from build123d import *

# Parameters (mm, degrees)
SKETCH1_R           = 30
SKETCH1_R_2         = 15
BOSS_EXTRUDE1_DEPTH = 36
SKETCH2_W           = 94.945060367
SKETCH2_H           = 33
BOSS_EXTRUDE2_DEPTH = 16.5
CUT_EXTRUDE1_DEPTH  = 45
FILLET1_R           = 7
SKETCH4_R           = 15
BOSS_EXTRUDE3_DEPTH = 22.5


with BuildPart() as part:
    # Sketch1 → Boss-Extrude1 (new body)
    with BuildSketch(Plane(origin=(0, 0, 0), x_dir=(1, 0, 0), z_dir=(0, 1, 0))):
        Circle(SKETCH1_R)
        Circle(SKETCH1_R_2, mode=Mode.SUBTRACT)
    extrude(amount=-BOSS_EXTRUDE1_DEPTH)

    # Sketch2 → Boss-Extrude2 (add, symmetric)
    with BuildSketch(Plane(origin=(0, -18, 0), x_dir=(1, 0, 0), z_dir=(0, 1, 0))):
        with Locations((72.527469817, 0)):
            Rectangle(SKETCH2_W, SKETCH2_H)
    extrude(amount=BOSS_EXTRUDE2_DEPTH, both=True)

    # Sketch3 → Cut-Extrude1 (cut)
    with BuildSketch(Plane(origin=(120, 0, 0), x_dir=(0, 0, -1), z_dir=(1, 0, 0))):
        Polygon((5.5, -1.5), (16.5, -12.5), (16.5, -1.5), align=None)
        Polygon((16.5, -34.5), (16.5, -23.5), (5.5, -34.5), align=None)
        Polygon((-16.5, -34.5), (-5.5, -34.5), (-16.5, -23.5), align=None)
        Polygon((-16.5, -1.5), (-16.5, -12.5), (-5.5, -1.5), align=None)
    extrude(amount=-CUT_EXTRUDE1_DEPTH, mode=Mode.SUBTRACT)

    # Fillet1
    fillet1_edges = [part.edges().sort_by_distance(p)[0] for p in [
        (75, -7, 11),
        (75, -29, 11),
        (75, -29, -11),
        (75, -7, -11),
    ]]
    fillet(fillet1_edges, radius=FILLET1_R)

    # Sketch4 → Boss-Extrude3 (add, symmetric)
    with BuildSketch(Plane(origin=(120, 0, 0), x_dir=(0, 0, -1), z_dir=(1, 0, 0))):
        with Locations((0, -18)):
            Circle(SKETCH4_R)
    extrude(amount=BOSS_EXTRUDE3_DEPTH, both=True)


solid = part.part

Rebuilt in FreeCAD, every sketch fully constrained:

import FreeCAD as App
import Part
import Sketcher


def edges_at(feature, points):
    """Names of the edges that pass closest to the given points."""
    edges = feature.Shape.Edges
    near = lambda p: min(range(len(edges)), key=lambda i: edges[i].distToShape(Part.Vertex(*p))[0])
    return sorted({f"Edge{near(p) + 1}" for p in points})


def add_polygon(sketch, points):
    """Adds a closed chain of lines whose ends are joined by coincident constraints."""
    first, n = sketch.GeometryCount, len(points)
    for a, b in zip(points, points[1:] + points[:1]):
        sketch.addGeometry(Part.LineSegment(App.Vector(*a, 0), App.Vector(*b, 0)), False)
    for i in range(n):
        sketch.addConstraint(Sketcher.Constraint("Coincident", first + i, 2, first + (i + 1) % n, 1))

doc = App.newDocument("Part")
params = doc.addObject("Spreadsheet::Sheet", "Params")
for row, (alias, value) in enumerate([
    ("sketch1_diameter", "60 mm"),
    ("sketch1_diameter2", "30 mm"),
    ("pad1_length", "36 mm"),
    ("sketch2_height", "33 mm"),
    ("pad2_length", "33 mm"),
    ("sketch3_width", "11 mm"),
    ("pocket1_length", "45 mm"),
    ("fillet_radius", "7 mm"),
    ("sketch4_diameter", "30 mm"),
    ("pad3_length", "45 mm"),
], start=1):
    params.set(f"A{row}", alias)
    params.set(f"B{row}", "=" + value)
    params.setAlias(f"B{row}", alias)

body = doc.addObject("PartDesign::Body", "Body")

sketch1 = body.newObject("Sketcher::SketchObject", "Sketch")
sketch1.AttachmentSupport = (doc.getObject("XZ_Plane"), [""])
sketch1.MapMode = "FlatFace"
sketch1.addGeometry([
    Part.Circle(App.Vector(0, 0, 0), App.Vector(0, 0, 1), 30),
    Part.Circle(App.Vector(0, 0, 0), App.Vector(0, 0, 1), 15),
], False)
sketch1.addConstraint([
    Sketcher.Constraint("Coincident", 0, 3, -1, 1),
    Sketcher.Constraint("Coincident", 1, 3, -1, 1),
    Sketcher.Constraint("Diameter", 0, 60.0),
    Sketcher.Constraint("Diameter", 1, 30.0),
])
sketch1.setExpression("Constraints[2]", "Params.sketch1_diameter")
sketch1.setExpression("Constraints[3]", "Params.sketch1_diameter2")
pad1 = body.newObject("PartDesign::Pad", "Pad")
pad1.Profile = sketch1
pad1.setExpression("Length", "Params.pad1_length")

sketch2 = body.newObject("Sketcher::SketchObject", "Sketch001")
sketch2.AttachmentSupport = (doc.getObject("XZ_Plane"), [""])
sketch2.MapMode = "FlatFace"
sketch2.AttachmentOffset = App.Placement(App.Vector(0, 0, 18), App.Rotation())
add_polygon(sketch2, [(25, -16), (25, 16), (120, 16), (120, -16)])
sketch2.addConstraint([
    Sketcher.Constraint("Vertical", 0),
    Sketcher.Constraint("Horizontal", 1),
    Sketcher.Constraint("Vertical", 2),
    Sketcher.Constraint("Horizontal", 3),
    Sketcher.Constraint("DistanceY", 0, 1, 0, 2, 33.0),
    Sketcher.Constraint("DistanceX", -1, 1, 1, 2, 120.0),
    Sketcher.Constraint("DistanceY", -1, 1, 0, 2, 16.5),
    Sketcher.Constraint("DistanceX", 1, 1, 1, 2, 94.94506),
])
sketch2.setExpression("Constraints[8]", "Params.sketch2_height")
pad2 = body.newObject("PartDesign::Pad", "Pad001")
pad2.Profile = sketch2
pad2.setExpression("Length", "Params.pad2_length")
pad2.Midplane = True

sketch3 = body.newObject("Sketcher::SketchObject", "Sketch002")
sketch3.AttachmentSupport = (doc.getObject("YZ_Plane"), [""])
sketch3.MapMode = "FlatFace"
sketch3.AttachmentOffset = App.Placement(App.Vector(0, 0, 120), App.Rotation())
add_polygon(sketch3, [(-2, -6), (-12, -16), (-2, -16)])
add_polygon(sketch3, [(-34, -16), (-24, -16), (-34, -6)])
add_polygon(sketch3, [(-34, 16), (-34, 6), (-24, 16)])
add_polygon(sketch3, [(-2, 16), (-12, 16), (-2, 6)])
sketch3.addConstraint([
    Sketcher.Constraint("Horizontal", 1),
    Sketcher.Constraint("Vertical", 2),
    Sketcher.Constraint("Horizontal", 3),
    Sketcher.Constraint("Vertical", 5),
    Sketcher.Constraint("Vertical", 6),
    Sketcher.Constraint("Horizontal", 8),
    Sketcher.Constraint("Horizontal", 9),
    Sketcher.Constraint("Vertical", 11),
    Sketcher.Constraint("Symmetric", 4, 2, 6, 2, -1),
    Sketcher.Constraint("Symmetric", 3, 2, 7, 2, -1),
    Sketcher.Constraint("Symmetric", 0, 2, 9, 2, -1),
    Sketcher.Constraint("Symmetric", 2, 2, 10, 2, -1),
    Sketcher.Constraint("Perpendicular", 0, 4),
    Sketcher.Constraint("Perpendicular", 4, 7),
    Sketcher.Constraint("Horizontal", 1, 2, 3, 2),
    Sketcher.Constraint("Horizontal", 2, 2, 4, 2),
    Sketcher.Constraint("DistanceX", 1, 1, 1, 2, 11.0),
    Sketcher.Constraint("DistanceX", 3, 2, 0, 2, 11.0),
    Sketcher.Constraint("DistanceY", 4, 2, 6, 2, 11.0),
    Sketcher.Constraint("DistanceX", 0, 2, -1, 1, 12.5),
])
sketch3.setExpression("Constraints[28]", "Params.sketch3_width")
pocket1 = body.newObject("PartDesign::Pocket", "Pocket")
pocket1.Profile = sketch3
pocket1.setExpression("Length", "Params.pocket1_length")
doc.recompute()

fillet = body.newObject("PartDesign::Fillet", "Fillet")
fillet.Base = (pocket1, edges_at(pocket1, [
    (75, -7, 11),
    (75, -29, 11),
    (75, -29, -11),
    (75, -7, -11),
]))
fillet.setExpression("Radius", "Params.fillet_radius")

sketch4 = body.newObject("Sketcher::SketchObject", "Sketch003")
sketch4.AttachmentSupport = (doc.getObject("YZ_Plane"), [""])
sketch4.MapMode = "FlatFace"
sketch4.AttachmentOffset = App.Placement(App.Vector(0, 0, 120), App.Rotation())
sketch4.addGeometry(Part.Circle(App.Vector(-18, 0, 0), App.Vector(0, 0, 1), 15), False)
sketch4.addConstraint([
    Sketcher.Constraint("PointOnObject", 0, 3, -1),
    Sketcher.Constraint("Diameter", 0, 30.0),
    Sketcher.Constraint("DistanceX", 0, 3, -1, 1, 18.0),
])
sketch4.setExpression("Constraints[1]", "Params.sketch4_diameter")
pad3 = body.newObject("PartDesign::Pad", "Pad002")
pad3.Profile = sketch4
pad3.setExpression("Length", "Params.pad3_length")
pad3.Midplane = True

doc.recompute()
